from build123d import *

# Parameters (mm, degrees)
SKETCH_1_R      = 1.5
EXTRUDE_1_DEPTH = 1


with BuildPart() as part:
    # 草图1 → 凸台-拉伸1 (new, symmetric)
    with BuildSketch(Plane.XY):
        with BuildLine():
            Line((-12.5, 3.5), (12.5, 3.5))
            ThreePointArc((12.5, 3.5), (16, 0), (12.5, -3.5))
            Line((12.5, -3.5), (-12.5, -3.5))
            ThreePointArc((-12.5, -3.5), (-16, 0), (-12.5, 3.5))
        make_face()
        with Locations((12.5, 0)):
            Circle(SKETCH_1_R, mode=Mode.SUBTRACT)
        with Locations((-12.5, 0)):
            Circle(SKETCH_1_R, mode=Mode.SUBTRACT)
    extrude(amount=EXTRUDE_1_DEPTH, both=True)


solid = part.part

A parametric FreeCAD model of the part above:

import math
import FreeCAD as App
import Part
import Sketcher

V = App.Vector

doc = App.newDocument("Part")
body = doc.addObject("PartDesign::Body", "Body")

# Sketch on XY plane
sketch1 = doc.addObject("Sketcher::SketchObject", "Sketch")
body.addObject(sketch1)
sketch1.AttachmentSupport = (doc.XY_Plane, [""])
sketch1.MapMode = "FlatFace"
sketch1.addGeometry(Part.LineSegment(V(12.5, 3.5, 0), V(-12.5, 3.5, 0)), False)
sketch1.addGeometry(Part.ArcOfCircle(Part.Circle(V(-12.5, 0, 0), V(0, 0, 1), 3.5), math.radians(90), math.radians(270)), False)
sketch1.addGeometry(Part.LineSegment(V(-12.5, -3.5, 0), V(12.5, -3.5, 0)), False)
sketch1.addGeometry(Part.ArcOfCircle(Part.Circle(V(12.5, 0, 0), V(0, 0, 1), 3.5), math.radians(-90), math.radians(90)), False)
sketch1.addGeometry(Part.Circle(V(12.5, 0, 0), V(0, 0, 1), 1.5), False)
sketch1.addGeometry(Part.Circle(V(-12.5, 0, 0), V(0, 0, 1), 1.5), False)
sketch1.addConstraint(Sketcher.Constraint("Tangent", 0, 2, 1, 1))
sketch1.addConstraint(Sketcher.Constraint("Tangent", 1, 2, 2, 1))
sketch1.addConstraint(Sketcher.Constraint("Tangent", 2, 2, 3, 1))
sketch1.addConstraint(Sketcher.Constraint("Tangent", 3, 2, 0, 1))
sketch1.addConstraint(Sketcher.Constraint("Horizontal", 0))
sketch1.addConstraint(Sketcher.Constraint("Horizontal", 2))
sketch1.addConstraint(Sketcher.Constraint("Coincident", 4, 3, 3, 3))
sketch1.addConstraint(Sketcher.Constraint("Coincident", 5, 3, 1, 3))
sketch1.addConstraint(Sketcher.Constraint("Equal", 4, 5))
sketch1.addConstraint(Sketcher.Constraint("Symmetric", 1, 3, 3, 3, -1, 1))
sketch1.addConstraint(Sketcher.Constraint("Diameter", 4, 3.0))
sketch1.addConstraint(Sketcher.Constraint("Radius", 1, 3.5))
sketch1.addConstraint(Sketcher.Constraint("DistanceX", 0, 2, 0, 1, 25.0))
pad1 = doc.addObject("PartDesign::Pad", "Pad")
body.addObject(pad1)
pad1.Profile = sketch1
pad1.Length = 2
pad1.Midplane = True

doc.recompute()
